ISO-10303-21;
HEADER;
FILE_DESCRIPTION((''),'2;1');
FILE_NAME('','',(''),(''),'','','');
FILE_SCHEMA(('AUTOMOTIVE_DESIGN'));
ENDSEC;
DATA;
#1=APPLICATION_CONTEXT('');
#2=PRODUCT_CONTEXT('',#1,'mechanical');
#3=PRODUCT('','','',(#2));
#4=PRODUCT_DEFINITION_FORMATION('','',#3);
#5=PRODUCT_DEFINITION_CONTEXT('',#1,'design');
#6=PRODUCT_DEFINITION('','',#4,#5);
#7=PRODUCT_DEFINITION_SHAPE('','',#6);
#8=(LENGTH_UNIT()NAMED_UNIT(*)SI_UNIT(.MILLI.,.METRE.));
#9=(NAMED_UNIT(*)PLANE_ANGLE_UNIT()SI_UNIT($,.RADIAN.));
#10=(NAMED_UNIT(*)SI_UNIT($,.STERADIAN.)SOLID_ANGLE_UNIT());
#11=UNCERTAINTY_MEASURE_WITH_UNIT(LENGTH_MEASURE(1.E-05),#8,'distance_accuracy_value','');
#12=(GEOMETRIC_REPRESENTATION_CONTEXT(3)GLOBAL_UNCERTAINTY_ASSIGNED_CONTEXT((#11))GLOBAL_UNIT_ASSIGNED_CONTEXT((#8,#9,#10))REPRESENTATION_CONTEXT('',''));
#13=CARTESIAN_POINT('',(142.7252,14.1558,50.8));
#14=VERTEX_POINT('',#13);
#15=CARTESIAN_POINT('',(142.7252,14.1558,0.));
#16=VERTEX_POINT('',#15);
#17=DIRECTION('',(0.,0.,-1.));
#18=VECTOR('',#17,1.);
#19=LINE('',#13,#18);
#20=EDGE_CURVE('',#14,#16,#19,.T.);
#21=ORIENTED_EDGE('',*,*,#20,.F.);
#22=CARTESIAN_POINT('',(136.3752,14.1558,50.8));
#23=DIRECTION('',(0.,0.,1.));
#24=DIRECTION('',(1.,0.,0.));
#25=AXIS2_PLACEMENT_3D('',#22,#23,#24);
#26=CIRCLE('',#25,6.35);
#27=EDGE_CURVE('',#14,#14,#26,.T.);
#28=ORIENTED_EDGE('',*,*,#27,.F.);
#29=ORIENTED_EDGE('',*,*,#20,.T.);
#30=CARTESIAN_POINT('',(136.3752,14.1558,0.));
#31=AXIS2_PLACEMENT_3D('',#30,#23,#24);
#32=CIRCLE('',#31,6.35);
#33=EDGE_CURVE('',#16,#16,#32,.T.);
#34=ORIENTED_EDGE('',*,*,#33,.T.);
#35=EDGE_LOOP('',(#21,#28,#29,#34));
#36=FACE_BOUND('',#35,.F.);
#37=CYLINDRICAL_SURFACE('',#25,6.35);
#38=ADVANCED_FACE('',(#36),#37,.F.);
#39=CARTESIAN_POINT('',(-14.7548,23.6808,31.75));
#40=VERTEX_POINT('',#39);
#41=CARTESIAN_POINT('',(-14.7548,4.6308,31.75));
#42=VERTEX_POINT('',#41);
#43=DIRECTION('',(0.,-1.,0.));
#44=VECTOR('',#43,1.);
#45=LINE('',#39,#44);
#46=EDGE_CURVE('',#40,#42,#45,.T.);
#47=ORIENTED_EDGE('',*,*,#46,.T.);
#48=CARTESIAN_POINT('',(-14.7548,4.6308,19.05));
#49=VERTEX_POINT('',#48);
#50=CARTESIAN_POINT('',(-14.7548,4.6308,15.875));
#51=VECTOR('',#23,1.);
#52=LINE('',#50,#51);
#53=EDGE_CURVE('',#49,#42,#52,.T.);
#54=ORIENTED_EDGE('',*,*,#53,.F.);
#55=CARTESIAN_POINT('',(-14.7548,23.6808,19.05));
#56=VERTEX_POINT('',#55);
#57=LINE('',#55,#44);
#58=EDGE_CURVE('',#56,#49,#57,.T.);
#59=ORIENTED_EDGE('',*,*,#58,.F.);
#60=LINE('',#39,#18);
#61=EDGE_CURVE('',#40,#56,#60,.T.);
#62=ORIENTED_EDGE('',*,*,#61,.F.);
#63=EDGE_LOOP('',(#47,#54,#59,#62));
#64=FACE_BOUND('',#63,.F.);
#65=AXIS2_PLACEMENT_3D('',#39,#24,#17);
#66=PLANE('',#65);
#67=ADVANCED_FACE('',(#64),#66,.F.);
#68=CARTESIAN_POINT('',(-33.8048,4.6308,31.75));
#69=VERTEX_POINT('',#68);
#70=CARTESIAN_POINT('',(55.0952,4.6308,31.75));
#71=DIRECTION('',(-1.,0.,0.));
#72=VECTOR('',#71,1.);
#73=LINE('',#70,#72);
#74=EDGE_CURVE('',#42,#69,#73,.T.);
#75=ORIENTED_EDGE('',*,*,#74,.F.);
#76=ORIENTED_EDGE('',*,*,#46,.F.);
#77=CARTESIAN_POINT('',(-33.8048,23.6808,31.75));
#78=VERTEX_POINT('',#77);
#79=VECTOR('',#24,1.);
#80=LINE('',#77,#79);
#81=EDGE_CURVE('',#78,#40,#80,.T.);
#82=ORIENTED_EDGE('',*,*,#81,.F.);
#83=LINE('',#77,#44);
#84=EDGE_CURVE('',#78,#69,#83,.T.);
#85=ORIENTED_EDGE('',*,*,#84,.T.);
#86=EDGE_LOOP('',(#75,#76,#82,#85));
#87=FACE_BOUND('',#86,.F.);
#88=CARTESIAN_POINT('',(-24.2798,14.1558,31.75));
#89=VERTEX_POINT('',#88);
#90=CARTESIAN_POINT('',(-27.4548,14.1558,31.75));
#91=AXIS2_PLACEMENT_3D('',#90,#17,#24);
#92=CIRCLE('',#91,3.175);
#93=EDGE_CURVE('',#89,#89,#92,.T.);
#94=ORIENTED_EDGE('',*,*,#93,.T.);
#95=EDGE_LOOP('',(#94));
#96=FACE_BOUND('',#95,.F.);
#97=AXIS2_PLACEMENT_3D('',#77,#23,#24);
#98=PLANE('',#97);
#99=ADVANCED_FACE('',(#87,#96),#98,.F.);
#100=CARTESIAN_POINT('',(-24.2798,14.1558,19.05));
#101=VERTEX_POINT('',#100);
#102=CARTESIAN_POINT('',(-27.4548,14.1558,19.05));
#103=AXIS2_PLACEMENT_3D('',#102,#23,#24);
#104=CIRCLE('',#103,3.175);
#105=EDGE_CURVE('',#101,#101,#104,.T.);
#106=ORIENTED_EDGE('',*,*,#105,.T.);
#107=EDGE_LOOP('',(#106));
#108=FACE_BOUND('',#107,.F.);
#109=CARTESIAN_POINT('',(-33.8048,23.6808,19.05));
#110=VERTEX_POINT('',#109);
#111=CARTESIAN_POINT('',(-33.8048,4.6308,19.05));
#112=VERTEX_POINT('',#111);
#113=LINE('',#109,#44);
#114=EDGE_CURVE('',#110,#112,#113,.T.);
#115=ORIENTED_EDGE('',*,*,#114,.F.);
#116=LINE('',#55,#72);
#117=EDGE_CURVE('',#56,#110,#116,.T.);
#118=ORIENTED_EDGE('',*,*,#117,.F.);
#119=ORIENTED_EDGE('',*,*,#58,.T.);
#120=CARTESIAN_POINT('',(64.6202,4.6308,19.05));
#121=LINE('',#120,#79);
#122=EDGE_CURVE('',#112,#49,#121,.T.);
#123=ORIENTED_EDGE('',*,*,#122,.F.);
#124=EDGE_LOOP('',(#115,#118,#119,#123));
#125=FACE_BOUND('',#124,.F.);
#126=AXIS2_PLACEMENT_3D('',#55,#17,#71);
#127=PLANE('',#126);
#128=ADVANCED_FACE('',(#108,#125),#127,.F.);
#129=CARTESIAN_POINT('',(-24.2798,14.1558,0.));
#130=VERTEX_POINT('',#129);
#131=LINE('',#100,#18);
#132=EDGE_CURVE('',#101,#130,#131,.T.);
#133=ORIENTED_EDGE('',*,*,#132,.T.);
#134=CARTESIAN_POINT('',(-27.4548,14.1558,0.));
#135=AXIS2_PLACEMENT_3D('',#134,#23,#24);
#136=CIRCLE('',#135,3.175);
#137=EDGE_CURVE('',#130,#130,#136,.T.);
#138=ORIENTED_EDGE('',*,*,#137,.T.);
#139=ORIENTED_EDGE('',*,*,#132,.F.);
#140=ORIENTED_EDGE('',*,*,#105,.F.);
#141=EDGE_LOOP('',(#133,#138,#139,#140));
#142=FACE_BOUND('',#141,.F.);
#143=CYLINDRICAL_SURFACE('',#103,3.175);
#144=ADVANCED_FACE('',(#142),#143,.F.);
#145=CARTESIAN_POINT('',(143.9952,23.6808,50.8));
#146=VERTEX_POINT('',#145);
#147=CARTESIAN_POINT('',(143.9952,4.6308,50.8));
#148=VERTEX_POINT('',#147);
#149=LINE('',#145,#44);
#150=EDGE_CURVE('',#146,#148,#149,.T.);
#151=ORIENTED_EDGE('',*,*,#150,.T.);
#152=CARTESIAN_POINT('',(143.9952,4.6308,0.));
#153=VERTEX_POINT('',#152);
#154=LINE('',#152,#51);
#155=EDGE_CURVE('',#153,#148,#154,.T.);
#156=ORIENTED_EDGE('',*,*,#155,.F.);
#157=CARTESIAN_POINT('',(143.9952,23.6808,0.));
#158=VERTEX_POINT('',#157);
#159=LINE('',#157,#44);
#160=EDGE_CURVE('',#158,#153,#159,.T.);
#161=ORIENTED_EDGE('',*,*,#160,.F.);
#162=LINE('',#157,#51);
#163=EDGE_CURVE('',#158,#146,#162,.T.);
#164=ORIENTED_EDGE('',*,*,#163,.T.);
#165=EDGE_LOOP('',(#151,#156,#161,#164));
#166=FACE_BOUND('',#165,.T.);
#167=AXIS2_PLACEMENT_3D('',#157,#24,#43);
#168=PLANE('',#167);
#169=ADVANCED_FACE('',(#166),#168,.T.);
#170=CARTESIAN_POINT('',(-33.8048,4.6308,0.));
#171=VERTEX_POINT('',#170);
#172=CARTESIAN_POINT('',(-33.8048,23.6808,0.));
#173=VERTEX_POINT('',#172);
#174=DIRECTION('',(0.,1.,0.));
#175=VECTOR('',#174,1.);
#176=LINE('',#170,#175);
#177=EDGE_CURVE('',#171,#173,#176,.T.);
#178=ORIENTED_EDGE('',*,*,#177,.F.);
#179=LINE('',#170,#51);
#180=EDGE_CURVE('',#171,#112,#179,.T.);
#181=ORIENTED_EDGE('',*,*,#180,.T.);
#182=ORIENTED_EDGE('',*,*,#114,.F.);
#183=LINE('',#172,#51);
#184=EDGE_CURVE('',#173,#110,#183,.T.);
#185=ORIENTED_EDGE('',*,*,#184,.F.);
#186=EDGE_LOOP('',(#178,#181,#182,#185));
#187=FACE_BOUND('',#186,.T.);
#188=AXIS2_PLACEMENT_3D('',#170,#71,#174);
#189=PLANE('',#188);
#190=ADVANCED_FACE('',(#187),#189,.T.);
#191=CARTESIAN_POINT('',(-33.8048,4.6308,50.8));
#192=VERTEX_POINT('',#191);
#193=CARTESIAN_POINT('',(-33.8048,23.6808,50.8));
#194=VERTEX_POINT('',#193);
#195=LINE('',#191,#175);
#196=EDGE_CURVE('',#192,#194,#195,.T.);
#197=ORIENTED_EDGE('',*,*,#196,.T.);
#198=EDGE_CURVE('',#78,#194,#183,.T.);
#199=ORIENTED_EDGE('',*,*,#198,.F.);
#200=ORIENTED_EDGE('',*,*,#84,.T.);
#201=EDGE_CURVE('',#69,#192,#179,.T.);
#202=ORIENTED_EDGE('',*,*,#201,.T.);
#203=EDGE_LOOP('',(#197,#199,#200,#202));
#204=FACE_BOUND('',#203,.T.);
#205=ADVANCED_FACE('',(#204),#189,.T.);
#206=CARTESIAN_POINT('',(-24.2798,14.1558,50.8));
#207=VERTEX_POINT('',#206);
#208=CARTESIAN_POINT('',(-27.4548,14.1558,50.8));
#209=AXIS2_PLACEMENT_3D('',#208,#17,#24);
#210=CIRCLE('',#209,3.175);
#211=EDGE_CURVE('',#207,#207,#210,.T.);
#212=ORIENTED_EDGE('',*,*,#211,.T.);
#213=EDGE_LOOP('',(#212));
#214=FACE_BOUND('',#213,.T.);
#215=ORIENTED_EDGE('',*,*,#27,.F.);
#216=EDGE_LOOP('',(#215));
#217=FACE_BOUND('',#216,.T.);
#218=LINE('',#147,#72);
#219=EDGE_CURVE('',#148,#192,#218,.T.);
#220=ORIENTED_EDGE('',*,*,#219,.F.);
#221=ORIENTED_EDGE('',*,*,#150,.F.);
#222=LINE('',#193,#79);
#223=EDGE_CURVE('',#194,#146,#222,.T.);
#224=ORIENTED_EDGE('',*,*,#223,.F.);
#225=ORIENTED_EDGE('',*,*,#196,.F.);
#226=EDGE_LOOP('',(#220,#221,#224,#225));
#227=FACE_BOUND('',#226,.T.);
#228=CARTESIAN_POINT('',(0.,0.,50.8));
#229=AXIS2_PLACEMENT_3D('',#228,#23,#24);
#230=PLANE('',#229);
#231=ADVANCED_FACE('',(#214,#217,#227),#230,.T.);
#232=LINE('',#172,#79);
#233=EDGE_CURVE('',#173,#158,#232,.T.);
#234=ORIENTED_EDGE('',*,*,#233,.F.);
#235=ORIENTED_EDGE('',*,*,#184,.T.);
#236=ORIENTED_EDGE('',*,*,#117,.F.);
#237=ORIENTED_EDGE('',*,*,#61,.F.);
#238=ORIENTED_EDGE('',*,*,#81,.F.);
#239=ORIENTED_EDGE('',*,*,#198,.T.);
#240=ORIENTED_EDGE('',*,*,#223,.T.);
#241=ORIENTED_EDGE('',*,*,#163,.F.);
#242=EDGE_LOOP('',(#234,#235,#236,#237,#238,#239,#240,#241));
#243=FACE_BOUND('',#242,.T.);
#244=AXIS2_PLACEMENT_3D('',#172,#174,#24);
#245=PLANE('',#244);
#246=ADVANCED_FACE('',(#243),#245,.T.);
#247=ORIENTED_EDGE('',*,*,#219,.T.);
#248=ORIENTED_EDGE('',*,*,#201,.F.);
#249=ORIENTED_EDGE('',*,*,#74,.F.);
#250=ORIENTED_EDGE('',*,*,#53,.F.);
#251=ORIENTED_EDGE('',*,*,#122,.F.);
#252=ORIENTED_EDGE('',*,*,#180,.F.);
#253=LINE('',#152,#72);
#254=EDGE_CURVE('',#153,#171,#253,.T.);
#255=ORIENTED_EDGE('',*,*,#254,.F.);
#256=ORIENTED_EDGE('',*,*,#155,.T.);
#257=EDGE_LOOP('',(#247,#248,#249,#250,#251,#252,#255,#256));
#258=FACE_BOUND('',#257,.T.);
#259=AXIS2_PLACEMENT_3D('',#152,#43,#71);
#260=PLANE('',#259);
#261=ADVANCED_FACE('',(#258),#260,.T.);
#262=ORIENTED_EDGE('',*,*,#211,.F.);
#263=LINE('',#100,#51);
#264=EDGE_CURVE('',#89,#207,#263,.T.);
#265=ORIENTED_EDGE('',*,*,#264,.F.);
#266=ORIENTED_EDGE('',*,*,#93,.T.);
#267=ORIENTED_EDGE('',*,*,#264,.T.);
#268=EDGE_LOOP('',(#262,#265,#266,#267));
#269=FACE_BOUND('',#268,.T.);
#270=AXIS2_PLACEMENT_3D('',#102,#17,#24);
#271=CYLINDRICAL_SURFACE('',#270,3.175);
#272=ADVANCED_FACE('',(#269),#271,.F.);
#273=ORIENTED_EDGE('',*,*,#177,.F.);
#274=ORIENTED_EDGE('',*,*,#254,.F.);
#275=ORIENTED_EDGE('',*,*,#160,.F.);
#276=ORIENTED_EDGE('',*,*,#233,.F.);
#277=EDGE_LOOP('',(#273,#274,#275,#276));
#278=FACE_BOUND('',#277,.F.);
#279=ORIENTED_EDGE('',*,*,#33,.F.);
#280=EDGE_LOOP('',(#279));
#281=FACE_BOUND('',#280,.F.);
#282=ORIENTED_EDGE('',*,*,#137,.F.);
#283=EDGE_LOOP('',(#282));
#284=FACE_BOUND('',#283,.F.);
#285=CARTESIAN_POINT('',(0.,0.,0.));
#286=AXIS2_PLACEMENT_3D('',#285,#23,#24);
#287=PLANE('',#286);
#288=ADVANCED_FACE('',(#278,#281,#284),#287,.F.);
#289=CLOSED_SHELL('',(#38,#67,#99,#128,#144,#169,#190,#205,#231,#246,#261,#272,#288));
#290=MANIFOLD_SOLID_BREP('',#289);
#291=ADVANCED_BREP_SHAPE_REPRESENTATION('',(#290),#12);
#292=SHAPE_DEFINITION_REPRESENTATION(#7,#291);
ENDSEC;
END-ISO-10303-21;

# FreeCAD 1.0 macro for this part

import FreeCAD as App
import Part
import Sketcher

V = App.Vector
Q = App.Units.Quantity

doc = App.newDocument("Part")
body = doc.addObject("PartDesign::Body", "Body")

sketch1 = doc.addObject("Sketcher::SketchObject", "Sketch")
body.addObject(sketch1)
sketch1.AttachmentSupport = (doc.XY_Plane, [""])
sketch1.MapMode = "FlatFace"
sketch1.addGeometry(Part.LineSegment(V(144, 24, 0), V(-34, 24, 0)), False)
sketch1.addGeometry(Part.LineSegment(V(-34, 24, 0), V(-34, 5, 0)), False)
sketch1.addGeometry(Part.LineSegment(V(-34, 5, 0), V(144, 5, 0)), False)
sketch1.addGeometry(Part.LineSegment(V(144, 5, 0), V(144, 24, 0)), False)
sketch1.addConstraint(Sketcher.Constraint("Coincident", 0, 2, 1, 1))
sketch1.addConstraint(Sketcher.Constraint("Coincident", 1, 2, 2, 1))
sketch1.addConstraint(Sketcher.Constraint("Coincident", 2, 2, 3, 1))
sketch1.addConstraint(Sketcher.Constraint("Coincident", 3, 2, 0, 1))
sketch1.addConstraint(Sketcher.Constraint("Horizontal", 0))
sketch1.addConstraint(Sketcher.Constraint("Vertical", 1))
sketch1.addConstraint(Sketcher.Constraint("Horizontal", 2))
sketch1.addConstraint(Sketcher.Constraint("Vertical", 3))
sketch1.addConstraint(Sketcher.Constraint("DistanceX", 0, 2, 0, 1, Q("7 in")))
sketch1.addConstraint(Sketcher.Constraint("DistanceY", 1, 2, 1, 1, Q("0.75 in")))
sketch1.addConstraint(Sketcher.Constraint("DistanceX", 0, 2, -1, 1, Q("1.3309 in")))
sketch1.addConstraint(Sketcher.Constraint("DistanceY", -1, 1, 0, 2, Q("23.6808 mm")))
pad1 = doc.addObject("PartDesign::Pad", "Pad")
body.addObject(pad1)
pad1.Profile = sketch1
pad1.Length = Q("2 in")

sketch2 = doc.addObject("Sketcher::SketchObject", "Sketch001")
body.addObject(sketch2)
sketch2.AttachmentSupport = (doc.XY_Plane, [""])
sketch2.MapMode = "FlatFace"
sketch2.AttachmentOffset = App.Placement(V(0, 0, 2 * 25.4), App.Rotation())
sketch2.addGeometry(Part.Circle(V(136, 14, 0), V(0, 0, 1), 6), False)
sketch2.addConstraint(Sketcher.Constraint("Diameter", 0, Q("0.5 in")))
sketch2.addConstraint(Sketcher.Constraint("DistanceX", -1, 1, 0, 3, Q("5.3691 in")))
sketch2.addConstraint(Sketcher.Constraint("DistanceY", -1, 1, 0, 3, Q("14.1558 mm")))
pocket1 = doc.addObject("PartDesign::Pocket", "Pocket")
body.addObject(pocket1)
pocket1.Profile = sketch2
pocket1.Length = Q("2 in")

sketch3 = doc.addObject("Sketcher::SketchObject", "Sketch002")
body.addObject(sketch3)
sketch3.AttachmentSupport = (doc.XZ_Plane, [""])
sketch3.MapMode = "FlatFace"
sketch3.AttachmentOffset = App.Placement(V(0, 0, -23.6808), App.Rotation())
sketch3.addGeometry(Part.LineSegment(V(-15, 19, 0), V(-34, 19, 0)), False)
sketch3.addGeometry(Part.LineSegment(V(-34, 19, 0), V(-34, 32, 0)), False)
sketch3.addGeometry(Part.LineSegment(V(-34, 32, 0), V(-15, 32, 0)), False)
sketch3.addGeometry(Part.LineSegment(V(-15, 32, 0), V(-15, 19, 0)), False)
sketch3.addConstraint(Sketcher.Constraint("Coincident", 0, 2, 1, 1))
sketch3.addConstraint(Sketcher.Constraint("Coincident", 1, 2, 2, 1))
sketch3.addConstraint(Sketcher.Constraint("Coincident", 2, 2, 3, 1))
sketch3.addConstraint(Sketcher.Constraint("Coincident", 3, 2, 0, 1))
sketch3.addConstraint(Sketcher.Constraint("Horizontal", 0))
sketch3.addConstraint(Sketcher.Constraint("Vertical", 1))
sketch3.addConstraint(Sketcher.Constraint("Horizontal", 2))
sketch3.addConstraint(Sketcher.Constraint("Vertical", 3))
sketch3.addConstraint(Sketcher.Constraint("DistanceY", 1, 1, 1, 2, Q("0.5 in")))
sketch3.addConstraint(Sketcher.Constraint("DistanceX", 0, 2, 0, 1, Q("0.75 in")))
sketch3.addConstraint(Sketcher.Constraint("DistanceY", -1, 1, 0, 2, Q("0.75 in")))
sketch3.addConstraint(Sketcher.Constraint("DistanceX", 0, 2, -1, 1, Q("1.3309 in")))
pocket2 = doc.addObject("PartDesign::Pocket", "Pocket001")
body.addObject(pocket2)
pocket2.Profile = sketch3
pocket2.Length = Q("2 in")
pocket2.Reversed = True

sketch4 = doc.addObject("Sketcher::SketchObject", "Sketch003")
body.addObject(sketch4)
sketch4.AttachmentSupport = (doc.XY_Plane, [""])
sketch4.MapMode = "FlatFace"
sketch4.AttachmentOffset = App.Placement(V(0, 0, 0.75 * 25.4), App.Rotation())
sketch4.addGeometry(Part.Circle(V(-27.5, 14.2, 0), V(0, 0, 1), 3.2), False)
sketch4.addConstraint(Sketcher.Constraint("Diameter", 0, Q("0.25 in")))
sketch4.addConstraint(Sketcher.Constraint("DistanceX", 0, 3, -1, 1, Q("1.0809 in")))
sketch4.addConstraint(Sketcher.Constraint("DistanceY", -1, 1, 0, 3, Q("14.1558 mm")))
pocket3 = doc.addObject("PartDesign::Pocket", "Pocket002")
body.addObject(pocket3)
pocket3.Profile = sketch4
pocket3.Length = Q("5 in")
pocket3.Midplane = True

doc.recompute()
